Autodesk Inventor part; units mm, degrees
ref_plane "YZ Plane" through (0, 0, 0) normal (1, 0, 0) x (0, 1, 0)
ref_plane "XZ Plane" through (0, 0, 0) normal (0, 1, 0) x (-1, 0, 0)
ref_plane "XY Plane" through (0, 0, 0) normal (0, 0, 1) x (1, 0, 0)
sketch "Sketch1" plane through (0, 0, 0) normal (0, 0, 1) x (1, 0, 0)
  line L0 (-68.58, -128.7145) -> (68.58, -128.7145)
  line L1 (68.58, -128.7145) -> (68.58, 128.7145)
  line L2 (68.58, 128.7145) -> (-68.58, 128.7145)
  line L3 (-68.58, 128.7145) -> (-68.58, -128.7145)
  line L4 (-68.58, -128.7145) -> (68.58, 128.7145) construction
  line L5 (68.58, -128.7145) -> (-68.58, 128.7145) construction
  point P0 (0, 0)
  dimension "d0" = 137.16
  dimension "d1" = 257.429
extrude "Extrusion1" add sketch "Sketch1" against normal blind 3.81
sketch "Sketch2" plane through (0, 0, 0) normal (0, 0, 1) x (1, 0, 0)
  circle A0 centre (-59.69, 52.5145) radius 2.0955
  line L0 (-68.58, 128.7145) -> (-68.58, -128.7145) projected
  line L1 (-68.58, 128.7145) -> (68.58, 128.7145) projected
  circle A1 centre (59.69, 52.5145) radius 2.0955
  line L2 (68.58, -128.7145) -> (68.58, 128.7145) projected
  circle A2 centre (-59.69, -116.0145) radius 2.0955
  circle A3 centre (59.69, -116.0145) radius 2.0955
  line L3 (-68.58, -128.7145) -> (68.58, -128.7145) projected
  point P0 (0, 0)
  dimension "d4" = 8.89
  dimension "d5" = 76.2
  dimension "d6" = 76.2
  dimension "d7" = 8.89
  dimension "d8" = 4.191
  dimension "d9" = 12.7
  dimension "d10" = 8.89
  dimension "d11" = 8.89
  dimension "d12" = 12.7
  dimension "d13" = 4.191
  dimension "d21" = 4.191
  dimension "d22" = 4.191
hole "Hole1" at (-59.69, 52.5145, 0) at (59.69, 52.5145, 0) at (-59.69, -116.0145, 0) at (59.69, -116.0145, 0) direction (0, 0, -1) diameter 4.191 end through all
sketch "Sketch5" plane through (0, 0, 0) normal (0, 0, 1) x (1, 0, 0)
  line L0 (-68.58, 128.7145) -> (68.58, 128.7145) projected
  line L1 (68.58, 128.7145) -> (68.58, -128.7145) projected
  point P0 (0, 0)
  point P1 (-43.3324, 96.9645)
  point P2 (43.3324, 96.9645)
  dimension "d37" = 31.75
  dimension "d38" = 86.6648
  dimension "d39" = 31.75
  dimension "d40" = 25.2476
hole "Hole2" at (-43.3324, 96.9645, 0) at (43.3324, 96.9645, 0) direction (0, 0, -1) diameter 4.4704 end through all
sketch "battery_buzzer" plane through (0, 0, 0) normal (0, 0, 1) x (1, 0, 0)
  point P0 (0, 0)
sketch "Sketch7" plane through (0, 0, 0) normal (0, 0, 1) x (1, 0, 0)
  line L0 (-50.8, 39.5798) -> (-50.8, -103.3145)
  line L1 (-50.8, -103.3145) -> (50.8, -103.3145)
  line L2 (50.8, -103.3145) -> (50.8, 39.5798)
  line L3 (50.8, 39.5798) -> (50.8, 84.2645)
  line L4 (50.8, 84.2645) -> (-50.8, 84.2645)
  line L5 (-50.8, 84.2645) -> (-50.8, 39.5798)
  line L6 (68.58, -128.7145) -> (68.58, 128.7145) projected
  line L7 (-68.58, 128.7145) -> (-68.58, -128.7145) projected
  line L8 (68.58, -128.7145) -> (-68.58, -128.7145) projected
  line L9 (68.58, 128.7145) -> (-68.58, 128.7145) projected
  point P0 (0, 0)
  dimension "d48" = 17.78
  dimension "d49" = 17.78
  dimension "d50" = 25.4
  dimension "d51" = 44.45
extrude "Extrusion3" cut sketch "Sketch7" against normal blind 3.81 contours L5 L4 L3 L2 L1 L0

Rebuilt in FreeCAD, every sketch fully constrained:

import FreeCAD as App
import Part
import Sketcher

V = App.Vector
Q = App.Units.Quantity


def add_polygon(sketch, points):
    """Adds a closed chain of lines whose ends are joined by coincident constraints."""
    first, n = sketch.GeometryCount, len(points)
    for a, b in zip(points, points[1:] + points[:1]):
        sketch.addGeometry(Part.LineSegment(App.Vector(*a, 0), App.Vector(*b, 0)), False)
    for i in range(n):
        sketch.addConstraint(Sketcher.Constraint("Coincident", first + i, 2, first + (i + 1) % n, 1))

doc = App.newDocument("Part")
body = doc.addObject("PartDesign::Body", "Body")

sketch1 = doc.addObject("Sketcher::SketchObject", "Sketch")
body.addObject(sketch1)
sketch1.AttachmentSupport = (doc.XY_Plane, [""])
sketch1.MapMode = "FlatFace"
add_polygon(sketch1, [(-69, 129), (-69, -129), (69, -129), (69, 129)])
sketch1.addConstraint(Sketcher.Constraint("Vertical", 0))
sketch1.addConstraint(Sketcher.Constraint("Horizontal", 1))
sketch1.addConstraint(Sketcher.Constraint("Vertical", 2))
sketch1.addConstraint(Sketcher.Constraint("Horizontal", 3))
sketch1.addConstraint(Sketcher.Constraint("Symmetric", 0, 2, 2, 2, -1, 1))
sketch1.addConstraint(Sketcher.Constraint("DistanceX", 1, 1, 1, 2, Q("5.4 in")))
sketch1.addConstraint(Sketcher.Constraint("DistanceY", 0, 2, 0, 1, Q("10.135 in")))
pad1 = doc.addObject("PartDesign::Pad", "Pad")
body.addObject(pad1)
pad1.Profile = sketch1
pad1.Length = Q("0.15 in")
pad1.Reversed = True

sketch2 = doc.addObject("Sketcher::SketchObject", "Sketch001")
body.addObject(sketch2)
sketch2.AttachmentSupport = (doc.XY_Plane, [""])
sketch2.MapMode = "FlatFace"
sketch2.addGeometry(Part.Circle(V(-59.7, 52.5, 0), V(0, 0, 1), 2.1), False)
sketch2.addGeometry(Part.Circle(V(59.7, 52.5, 0), V(0, 0, 1), 2.1), False)
sketch2.addGeometry(Part.Circle(V(-59.7, -116, 0), V(0, 0, 1), 2.1), False)
sketch2.addGeometry(Part.Circle(V(59.7, -116, 0), V(0, 0, 1), 2.1), False)
sketch2.addConstraint(Sketcher.Constraint("Equal", 0, 1))
sketch2.addConstraint(Sketcher.Constraint("Equal", 1, 2))
sketch2.addConstraint(Sketcher.Constraint("Equal", 2, 3))
sketch2.addConstraint(Sketcher.Constraint("Symmetric", 0, 3, 1, 3, -2))
sketch2.addConstraint(Sketcher.Constraint("Symmetric", 2, 3, 3, 3, -2))
sketch2.addConstraint(Sketcher.Constraint("Vertical", 0, 3, 2, 3))
sketch2.addConstraint(Sketcher.Constraint("Diameter", 0, Q("0.165 in")))
sketch2.addConstraint(Sketcher.Constraint("DistanceX", 0, 3, 1, 3, Q("4.7 in")))
sketch2.addConstraint(Sketcher.Constraint("DistanceY", 2, 3, 0, 3, Q("6.635 in")))
sketch2.addConstraint(Sketcher.Constraint("DistanceY", -1, 1, 0, 3, Q("2.0675 in")))
doc.recompute()
hole = doc.addObject("PartDesign::Hole", "Hole")
body.addObject(hole)
hole.Profile = sketch2
hole.ThreadType = "None"
hole.Diameter = Q("0.165 in")
hole.DepthType = "ThroughAll"

sketch3 = doc.addObject("Sketcher::SketchObject", "Sketch002")
body.addObject(sketch3)
sketch3.AttachmentSupport = (doc.XY_Plane, [""])
sketch3.MapMode = "FlatFace"
sketch3.addGeometry(Part.Circle(V(-43.3, 97, 0), V(0, 0, 1), 2.2), False)
sketch3.addGeometry(Part.Circle(V(43.3, 97, 0), V(0, 0, 1), 2.2), False)
sketch3.addConstraint(Sketcher.Constraint("Equal", 0, 1))
sketch3.addConstraint(Sketcher.Constraint("Symmetric", 0, 3, 1, 3, -2))
sketch3.addConstraint(Sketcher.Constraint("Diameter", 0, Q("0.176 in")))
sketch3.addConstraint(Sketcher.Constraint("DistanceX", 0, 3, -1, 1, Q("1.706 in")))
sketch3.addConstraint(Sketcher.Constraint("DistanceY", -1, 1, 0, 3, Q("3.8175 in")))
doc.recompute()
hole2 = doc.addObject("PartDesign::Hole", "Hole001")
body.addObject(hole2)
hole2.Profile = sketch3
hole2.ThreadType = "None"
hole2.Diameter = Q("0.176 in")
hole2.DepthType = "ThroughAll"

sketch4 = doc.addObject("Sketcher::SketchObject", "Sketch003")
body.addObject(sketch4)
sketch4.AttachmentSupport = (doc.XY_Plane, [""])
sketch4.MapMode = "FlatFace"
add_polygon(sketch4, [(-51, 84), (-51, -103), (51, -103), (51, 84)])
sketch4.addConstraint(Sketcher.Constraint("Vertical", 0))
sketch4.addConstraint(Sketcher.Constraint("Horizontal", 1))
sketch4.addConstraint(Sketcher.Constraint("Vertical", 2))
sketch4.addConstraint(Sketcher.Constraint("Horizontal", 3))
sketch4.addConstraint(Sketcher.Constraint("DistanceX", 1, 1, 1, 2, Q("4 in")))
sketch4.addConstraint(Sketcher.Constraint("DistanceX", 0, 2, -1, 1, Q("2 in")))
sketch4.addConstraint(Sketcher.Constraint("DistanceY", 0, 2, 0, 1, Q("7.385 in")))
sketch4.addConstraint(Sketcher.Constraint("DistanceY", 0, 2, -1, 1, Q("4.0675 in")))
pocket1 = doc.addObject("PartDesign::Pocket", "Pocket")
body.addObject(pocket1)
pocket1.Profile = sketch4
pocket1.Length = Q("0.15 in")

doc.recompute()
